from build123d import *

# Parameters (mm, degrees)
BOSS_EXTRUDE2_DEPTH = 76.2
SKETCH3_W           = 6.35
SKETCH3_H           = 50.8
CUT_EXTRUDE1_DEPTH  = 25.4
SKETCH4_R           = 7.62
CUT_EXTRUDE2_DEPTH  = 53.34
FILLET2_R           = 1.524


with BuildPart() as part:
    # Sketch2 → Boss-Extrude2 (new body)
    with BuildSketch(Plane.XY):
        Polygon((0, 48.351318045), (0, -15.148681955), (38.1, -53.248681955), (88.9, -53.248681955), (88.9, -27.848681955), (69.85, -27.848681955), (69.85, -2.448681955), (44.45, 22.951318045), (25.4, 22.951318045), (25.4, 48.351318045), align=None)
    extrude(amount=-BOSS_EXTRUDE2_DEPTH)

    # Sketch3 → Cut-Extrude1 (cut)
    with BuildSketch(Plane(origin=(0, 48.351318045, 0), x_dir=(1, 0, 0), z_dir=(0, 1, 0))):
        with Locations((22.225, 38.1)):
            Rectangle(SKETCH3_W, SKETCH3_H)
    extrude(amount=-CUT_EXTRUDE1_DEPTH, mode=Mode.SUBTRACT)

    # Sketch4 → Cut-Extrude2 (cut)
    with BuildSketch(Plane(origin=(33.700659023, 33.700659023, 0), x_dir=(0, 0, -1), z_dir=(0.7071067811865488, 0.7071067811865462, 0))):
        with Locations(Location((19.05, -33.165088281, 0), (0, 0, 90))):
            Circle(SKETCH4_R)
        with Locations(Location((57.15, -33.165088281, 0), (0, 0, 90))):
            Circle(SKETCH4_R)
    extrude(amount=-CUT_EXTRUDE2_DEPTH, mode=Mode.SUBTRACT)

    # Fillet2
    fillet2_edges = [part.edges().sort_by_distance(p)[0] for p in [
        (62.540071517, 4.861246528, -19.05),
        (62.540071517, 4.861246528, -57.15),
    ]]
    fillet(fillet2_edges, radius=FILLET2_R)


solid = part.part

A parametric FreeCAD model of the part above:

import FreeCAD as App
import Part
import Sketcher
Q = App.Units.Quantity


def edges_at(feature, points):
    """Names of the edges that pass closest to the given points."""
    edges = feature.Shape.Edges
    near = lambda p: min(range(len(edges)), key=lambda i: edges[i].distToShape(Part.Vertex(*p))[0])
    return sorted({f"Edge{near(p) + 1}" for p in points})


def add_polygon(sketch, points):
    """Adds a closed chain of lines whose ends are joined by coincident constraints."""
    first, n = sketch.GeometryCount, len(points)
    for a, b in zip(points, points[1:] + points[:1]):
        sketch.addGeometry(Part.LineSegment(App.Vector(*a, 0), App.Vector(*b, 0)), False)
    for i in range(n):
        sketch.addConstraint(Sketcher.Constraint("Coincident", first + i, 2, first + (i + 1) % n, 1))

doc = App.newDocument("Part")
params = doc.addObject("Spreadsheet::Sheet", "Params")
for row, (alias, value) in enumerate([
    ("sketch1_width", "2 in"),
    ("sketch1_width2", "1 in"),
    ("sketch1_height", "2.5 in"),
    ("pad1_length", "3 in"),
    ("sketch2_height", "2 in"),
    ("sketch2_width", "0.25 in"),
    ("pocket1_length", "1 in"),
    ("sketch3_diameter", "0.6 in"),
    ("pocket2_length", "2.1 in"),
    ("fillet_radius", "0.06 in"),
], start=1):
    params.set(f"A{row}", alias)
    params.set(f"B{row}", "=" + value)
    params.setAlias(f"B{row}", alias)

body = doc.addObject("PartDesign::Body", "Body")

# Sketch on XY plane
sketch1 = body.newObject("Sketcher::SketchObject", "Sketch")
sketch1.AttachmentSupport = (doc.getObject("XY_Plane"), [""])
sketch1.MapMode = "FlatFace"
add_polygon(sketch1, [(0, 48), (0, -15), (38, -53), (89, -53), (89, -28), (70, -28), (70, -2), (44, 23), (25, 23), (25, 48)])  # lines 0-9
sketch1.addConstraint([
    Sketcher.Constraint("Vertical", 0),
    Sketcher.Constraint("Horizontal", 2),
    Sketcher.Constraint("Vertical", 3),
    Sketcher.Constraint("Horizontal", 4),
    Sketcher.Constraint("Vertical", 5),
    Sketcher.Constraint("Horizontal", 7),
    Sketcher.Constraint("Vertical", 8),
    Sketcher.Constraint("Horizontal", 9),
    Sketcher.Constraint("PointOnObject", 0, 2, -2),
    Sketcher.Constraint("Parallel", 1, 6),
    Sketcher.Constraint("Equal", 4, 7),
    Sketcher.Constraint("Equal", 9, 3),
    Sketcher.Constraint("Equal", 3, 5),
    Sketcher.Constraint("Equal", 5, 8),
    Sketcher.Constraint("DistanceX", 2, 1, 2, 2, Q("2 in")),
    Sketcher.Constraint("DistanceX", 9, 2, 9, 1, Q("1 in")),
    Sketcher.Constraint("DistanceY", 0, 2, 0, 1, Q("2.5 in")),
    Sketcher.Constraint("Angle", 1, Q("-45 deg")),
    Sketcher.Constraint("DistanceX", 6, 2, 5, 2, Q("1 in")),
    Sketcher.Constraint("DistanceY", 0, 2, -1, 1, 15.148682),
])
sketch1.setExpression("Constraints[24]", "Params.sketch1_width")
sketch1.setExpression("Constraints[25]", "Params.sketch1_width2")
sketch1.setExpression("Constraints[26]", "Params.sketch1_height")
pad1 = body.newObject("PartDesign::Pad", "Pad")
pad1.Profile = sketch1
pad1.setExpression("Length", "Params.pad1_length")
pad1.Reversed = True

# Sketch on XZ plane
sketch2 = body.newObject("Sketcher::SketchObject", "Sketch001")
sketch2.AttachmentSupport = (doc.getObject("XZ_Plane"), [""])
sketch2.MapMode = "FlatFace"
sketch2.AttachmentOffset = App.Placement(App.Vector(0, 0, -48.351318), App.Rotation())
add_polygon(sketch2, [(19, -64), (19, -13), (25, -13), (25, -64)])  # lines 0-3
sketch2.addConstraint([
    Sketcher.Constraint("Vertical", 0),
    Sketcher.Constraint("Horizontal", 1),
    Sketcher.Constraint("Vertical", 2),
    Sketcher.Constraint("Horizontal", 3),
    Sketcher.Constraint("DistanceY", 0, 1, 0, 2, Q("2 in")),
    Sketcher.Constraint("DistanceX", -1, 1, 1, 2, Q("1 in")),
    Sketcher.Constraint("DistanceX", 1, 1, 1, 2, Q("0.25 in")),
    Sketcher.Constraint("DistanceY", 0, 2, -1, 1, Q("0.5 in")),
])
sketch2.setExpression("Constraints[8]", "Params.sketch2_height")
sketch2.setExpression("Constraints[10]", "Params.sketch2_width")
pocket1 = body.newObject("PartDesign::Pocket", "Pocket")
pocket1.Profile = sketch2
pocket1.setExpression("Length", "Params.pocket1_length")
pocket1.Reversed = True

# Sketch on an angled plane
sketch3 = body.newObject("Sketcher::SketchObject", "Sketch002")
sketch3.Placement = App.Placement(App.Vector(33.700659, 33.700659, 0), App.Rotation(App.Vector(0, 0, -1), App.Vector(-0.707106781, 0.707106781, 0), App.Vector(0.707106781, 0.707106781, 0), "ZXY"))
sketch3.addGeometry([
    Part.Circle(App.Vector(19, -33, 0), App.Vector(0, 0, 1), 8),
    Part.Circle(App.Vector(57, -33, 0), App.Vector(0, 0, 1), 8),
], False)
sketch3.addConstraint([
    Sketcher.Constraint("Equal", 0, 1),
    Sketcher.Constraint("Horizontal", 0, 3, 1, 3),
    Sketcher.Constraint("Diameter", 0, Q("0.6 in")),
    Sketcher.Constraint("DistanceX", 0, 3, 1, 3, Q("1.5 in")),
    Sketcher.Constraint("DistanceX", -1, 1, 0, 3, Q("0.75 in")),
    Sketcher.Constraint("DistanceY", 0, 3, -1, 1, 33.165088),
])
sketch3.setExpression("Constraints[2]", "Params.sketch3_diameter")
pocket2 = body.newObject("PartDesign::Pocket", "Pocket001")
pocket2.Profile = sketch3
pocket2.setExpression("Length", "Params.pocket2_length")
doc.recompute()

fillet = body.newObject("PartDesign::Fillet", "Fillet")
fillet.Base = (pocket2, edges_at(pocket2, [(62.54, 4.861, -19.05), (62.54, 4.861, -57.15)]))
fillet.setExpression("Radius", "Params.fillet_radius")

doc.recompute()
